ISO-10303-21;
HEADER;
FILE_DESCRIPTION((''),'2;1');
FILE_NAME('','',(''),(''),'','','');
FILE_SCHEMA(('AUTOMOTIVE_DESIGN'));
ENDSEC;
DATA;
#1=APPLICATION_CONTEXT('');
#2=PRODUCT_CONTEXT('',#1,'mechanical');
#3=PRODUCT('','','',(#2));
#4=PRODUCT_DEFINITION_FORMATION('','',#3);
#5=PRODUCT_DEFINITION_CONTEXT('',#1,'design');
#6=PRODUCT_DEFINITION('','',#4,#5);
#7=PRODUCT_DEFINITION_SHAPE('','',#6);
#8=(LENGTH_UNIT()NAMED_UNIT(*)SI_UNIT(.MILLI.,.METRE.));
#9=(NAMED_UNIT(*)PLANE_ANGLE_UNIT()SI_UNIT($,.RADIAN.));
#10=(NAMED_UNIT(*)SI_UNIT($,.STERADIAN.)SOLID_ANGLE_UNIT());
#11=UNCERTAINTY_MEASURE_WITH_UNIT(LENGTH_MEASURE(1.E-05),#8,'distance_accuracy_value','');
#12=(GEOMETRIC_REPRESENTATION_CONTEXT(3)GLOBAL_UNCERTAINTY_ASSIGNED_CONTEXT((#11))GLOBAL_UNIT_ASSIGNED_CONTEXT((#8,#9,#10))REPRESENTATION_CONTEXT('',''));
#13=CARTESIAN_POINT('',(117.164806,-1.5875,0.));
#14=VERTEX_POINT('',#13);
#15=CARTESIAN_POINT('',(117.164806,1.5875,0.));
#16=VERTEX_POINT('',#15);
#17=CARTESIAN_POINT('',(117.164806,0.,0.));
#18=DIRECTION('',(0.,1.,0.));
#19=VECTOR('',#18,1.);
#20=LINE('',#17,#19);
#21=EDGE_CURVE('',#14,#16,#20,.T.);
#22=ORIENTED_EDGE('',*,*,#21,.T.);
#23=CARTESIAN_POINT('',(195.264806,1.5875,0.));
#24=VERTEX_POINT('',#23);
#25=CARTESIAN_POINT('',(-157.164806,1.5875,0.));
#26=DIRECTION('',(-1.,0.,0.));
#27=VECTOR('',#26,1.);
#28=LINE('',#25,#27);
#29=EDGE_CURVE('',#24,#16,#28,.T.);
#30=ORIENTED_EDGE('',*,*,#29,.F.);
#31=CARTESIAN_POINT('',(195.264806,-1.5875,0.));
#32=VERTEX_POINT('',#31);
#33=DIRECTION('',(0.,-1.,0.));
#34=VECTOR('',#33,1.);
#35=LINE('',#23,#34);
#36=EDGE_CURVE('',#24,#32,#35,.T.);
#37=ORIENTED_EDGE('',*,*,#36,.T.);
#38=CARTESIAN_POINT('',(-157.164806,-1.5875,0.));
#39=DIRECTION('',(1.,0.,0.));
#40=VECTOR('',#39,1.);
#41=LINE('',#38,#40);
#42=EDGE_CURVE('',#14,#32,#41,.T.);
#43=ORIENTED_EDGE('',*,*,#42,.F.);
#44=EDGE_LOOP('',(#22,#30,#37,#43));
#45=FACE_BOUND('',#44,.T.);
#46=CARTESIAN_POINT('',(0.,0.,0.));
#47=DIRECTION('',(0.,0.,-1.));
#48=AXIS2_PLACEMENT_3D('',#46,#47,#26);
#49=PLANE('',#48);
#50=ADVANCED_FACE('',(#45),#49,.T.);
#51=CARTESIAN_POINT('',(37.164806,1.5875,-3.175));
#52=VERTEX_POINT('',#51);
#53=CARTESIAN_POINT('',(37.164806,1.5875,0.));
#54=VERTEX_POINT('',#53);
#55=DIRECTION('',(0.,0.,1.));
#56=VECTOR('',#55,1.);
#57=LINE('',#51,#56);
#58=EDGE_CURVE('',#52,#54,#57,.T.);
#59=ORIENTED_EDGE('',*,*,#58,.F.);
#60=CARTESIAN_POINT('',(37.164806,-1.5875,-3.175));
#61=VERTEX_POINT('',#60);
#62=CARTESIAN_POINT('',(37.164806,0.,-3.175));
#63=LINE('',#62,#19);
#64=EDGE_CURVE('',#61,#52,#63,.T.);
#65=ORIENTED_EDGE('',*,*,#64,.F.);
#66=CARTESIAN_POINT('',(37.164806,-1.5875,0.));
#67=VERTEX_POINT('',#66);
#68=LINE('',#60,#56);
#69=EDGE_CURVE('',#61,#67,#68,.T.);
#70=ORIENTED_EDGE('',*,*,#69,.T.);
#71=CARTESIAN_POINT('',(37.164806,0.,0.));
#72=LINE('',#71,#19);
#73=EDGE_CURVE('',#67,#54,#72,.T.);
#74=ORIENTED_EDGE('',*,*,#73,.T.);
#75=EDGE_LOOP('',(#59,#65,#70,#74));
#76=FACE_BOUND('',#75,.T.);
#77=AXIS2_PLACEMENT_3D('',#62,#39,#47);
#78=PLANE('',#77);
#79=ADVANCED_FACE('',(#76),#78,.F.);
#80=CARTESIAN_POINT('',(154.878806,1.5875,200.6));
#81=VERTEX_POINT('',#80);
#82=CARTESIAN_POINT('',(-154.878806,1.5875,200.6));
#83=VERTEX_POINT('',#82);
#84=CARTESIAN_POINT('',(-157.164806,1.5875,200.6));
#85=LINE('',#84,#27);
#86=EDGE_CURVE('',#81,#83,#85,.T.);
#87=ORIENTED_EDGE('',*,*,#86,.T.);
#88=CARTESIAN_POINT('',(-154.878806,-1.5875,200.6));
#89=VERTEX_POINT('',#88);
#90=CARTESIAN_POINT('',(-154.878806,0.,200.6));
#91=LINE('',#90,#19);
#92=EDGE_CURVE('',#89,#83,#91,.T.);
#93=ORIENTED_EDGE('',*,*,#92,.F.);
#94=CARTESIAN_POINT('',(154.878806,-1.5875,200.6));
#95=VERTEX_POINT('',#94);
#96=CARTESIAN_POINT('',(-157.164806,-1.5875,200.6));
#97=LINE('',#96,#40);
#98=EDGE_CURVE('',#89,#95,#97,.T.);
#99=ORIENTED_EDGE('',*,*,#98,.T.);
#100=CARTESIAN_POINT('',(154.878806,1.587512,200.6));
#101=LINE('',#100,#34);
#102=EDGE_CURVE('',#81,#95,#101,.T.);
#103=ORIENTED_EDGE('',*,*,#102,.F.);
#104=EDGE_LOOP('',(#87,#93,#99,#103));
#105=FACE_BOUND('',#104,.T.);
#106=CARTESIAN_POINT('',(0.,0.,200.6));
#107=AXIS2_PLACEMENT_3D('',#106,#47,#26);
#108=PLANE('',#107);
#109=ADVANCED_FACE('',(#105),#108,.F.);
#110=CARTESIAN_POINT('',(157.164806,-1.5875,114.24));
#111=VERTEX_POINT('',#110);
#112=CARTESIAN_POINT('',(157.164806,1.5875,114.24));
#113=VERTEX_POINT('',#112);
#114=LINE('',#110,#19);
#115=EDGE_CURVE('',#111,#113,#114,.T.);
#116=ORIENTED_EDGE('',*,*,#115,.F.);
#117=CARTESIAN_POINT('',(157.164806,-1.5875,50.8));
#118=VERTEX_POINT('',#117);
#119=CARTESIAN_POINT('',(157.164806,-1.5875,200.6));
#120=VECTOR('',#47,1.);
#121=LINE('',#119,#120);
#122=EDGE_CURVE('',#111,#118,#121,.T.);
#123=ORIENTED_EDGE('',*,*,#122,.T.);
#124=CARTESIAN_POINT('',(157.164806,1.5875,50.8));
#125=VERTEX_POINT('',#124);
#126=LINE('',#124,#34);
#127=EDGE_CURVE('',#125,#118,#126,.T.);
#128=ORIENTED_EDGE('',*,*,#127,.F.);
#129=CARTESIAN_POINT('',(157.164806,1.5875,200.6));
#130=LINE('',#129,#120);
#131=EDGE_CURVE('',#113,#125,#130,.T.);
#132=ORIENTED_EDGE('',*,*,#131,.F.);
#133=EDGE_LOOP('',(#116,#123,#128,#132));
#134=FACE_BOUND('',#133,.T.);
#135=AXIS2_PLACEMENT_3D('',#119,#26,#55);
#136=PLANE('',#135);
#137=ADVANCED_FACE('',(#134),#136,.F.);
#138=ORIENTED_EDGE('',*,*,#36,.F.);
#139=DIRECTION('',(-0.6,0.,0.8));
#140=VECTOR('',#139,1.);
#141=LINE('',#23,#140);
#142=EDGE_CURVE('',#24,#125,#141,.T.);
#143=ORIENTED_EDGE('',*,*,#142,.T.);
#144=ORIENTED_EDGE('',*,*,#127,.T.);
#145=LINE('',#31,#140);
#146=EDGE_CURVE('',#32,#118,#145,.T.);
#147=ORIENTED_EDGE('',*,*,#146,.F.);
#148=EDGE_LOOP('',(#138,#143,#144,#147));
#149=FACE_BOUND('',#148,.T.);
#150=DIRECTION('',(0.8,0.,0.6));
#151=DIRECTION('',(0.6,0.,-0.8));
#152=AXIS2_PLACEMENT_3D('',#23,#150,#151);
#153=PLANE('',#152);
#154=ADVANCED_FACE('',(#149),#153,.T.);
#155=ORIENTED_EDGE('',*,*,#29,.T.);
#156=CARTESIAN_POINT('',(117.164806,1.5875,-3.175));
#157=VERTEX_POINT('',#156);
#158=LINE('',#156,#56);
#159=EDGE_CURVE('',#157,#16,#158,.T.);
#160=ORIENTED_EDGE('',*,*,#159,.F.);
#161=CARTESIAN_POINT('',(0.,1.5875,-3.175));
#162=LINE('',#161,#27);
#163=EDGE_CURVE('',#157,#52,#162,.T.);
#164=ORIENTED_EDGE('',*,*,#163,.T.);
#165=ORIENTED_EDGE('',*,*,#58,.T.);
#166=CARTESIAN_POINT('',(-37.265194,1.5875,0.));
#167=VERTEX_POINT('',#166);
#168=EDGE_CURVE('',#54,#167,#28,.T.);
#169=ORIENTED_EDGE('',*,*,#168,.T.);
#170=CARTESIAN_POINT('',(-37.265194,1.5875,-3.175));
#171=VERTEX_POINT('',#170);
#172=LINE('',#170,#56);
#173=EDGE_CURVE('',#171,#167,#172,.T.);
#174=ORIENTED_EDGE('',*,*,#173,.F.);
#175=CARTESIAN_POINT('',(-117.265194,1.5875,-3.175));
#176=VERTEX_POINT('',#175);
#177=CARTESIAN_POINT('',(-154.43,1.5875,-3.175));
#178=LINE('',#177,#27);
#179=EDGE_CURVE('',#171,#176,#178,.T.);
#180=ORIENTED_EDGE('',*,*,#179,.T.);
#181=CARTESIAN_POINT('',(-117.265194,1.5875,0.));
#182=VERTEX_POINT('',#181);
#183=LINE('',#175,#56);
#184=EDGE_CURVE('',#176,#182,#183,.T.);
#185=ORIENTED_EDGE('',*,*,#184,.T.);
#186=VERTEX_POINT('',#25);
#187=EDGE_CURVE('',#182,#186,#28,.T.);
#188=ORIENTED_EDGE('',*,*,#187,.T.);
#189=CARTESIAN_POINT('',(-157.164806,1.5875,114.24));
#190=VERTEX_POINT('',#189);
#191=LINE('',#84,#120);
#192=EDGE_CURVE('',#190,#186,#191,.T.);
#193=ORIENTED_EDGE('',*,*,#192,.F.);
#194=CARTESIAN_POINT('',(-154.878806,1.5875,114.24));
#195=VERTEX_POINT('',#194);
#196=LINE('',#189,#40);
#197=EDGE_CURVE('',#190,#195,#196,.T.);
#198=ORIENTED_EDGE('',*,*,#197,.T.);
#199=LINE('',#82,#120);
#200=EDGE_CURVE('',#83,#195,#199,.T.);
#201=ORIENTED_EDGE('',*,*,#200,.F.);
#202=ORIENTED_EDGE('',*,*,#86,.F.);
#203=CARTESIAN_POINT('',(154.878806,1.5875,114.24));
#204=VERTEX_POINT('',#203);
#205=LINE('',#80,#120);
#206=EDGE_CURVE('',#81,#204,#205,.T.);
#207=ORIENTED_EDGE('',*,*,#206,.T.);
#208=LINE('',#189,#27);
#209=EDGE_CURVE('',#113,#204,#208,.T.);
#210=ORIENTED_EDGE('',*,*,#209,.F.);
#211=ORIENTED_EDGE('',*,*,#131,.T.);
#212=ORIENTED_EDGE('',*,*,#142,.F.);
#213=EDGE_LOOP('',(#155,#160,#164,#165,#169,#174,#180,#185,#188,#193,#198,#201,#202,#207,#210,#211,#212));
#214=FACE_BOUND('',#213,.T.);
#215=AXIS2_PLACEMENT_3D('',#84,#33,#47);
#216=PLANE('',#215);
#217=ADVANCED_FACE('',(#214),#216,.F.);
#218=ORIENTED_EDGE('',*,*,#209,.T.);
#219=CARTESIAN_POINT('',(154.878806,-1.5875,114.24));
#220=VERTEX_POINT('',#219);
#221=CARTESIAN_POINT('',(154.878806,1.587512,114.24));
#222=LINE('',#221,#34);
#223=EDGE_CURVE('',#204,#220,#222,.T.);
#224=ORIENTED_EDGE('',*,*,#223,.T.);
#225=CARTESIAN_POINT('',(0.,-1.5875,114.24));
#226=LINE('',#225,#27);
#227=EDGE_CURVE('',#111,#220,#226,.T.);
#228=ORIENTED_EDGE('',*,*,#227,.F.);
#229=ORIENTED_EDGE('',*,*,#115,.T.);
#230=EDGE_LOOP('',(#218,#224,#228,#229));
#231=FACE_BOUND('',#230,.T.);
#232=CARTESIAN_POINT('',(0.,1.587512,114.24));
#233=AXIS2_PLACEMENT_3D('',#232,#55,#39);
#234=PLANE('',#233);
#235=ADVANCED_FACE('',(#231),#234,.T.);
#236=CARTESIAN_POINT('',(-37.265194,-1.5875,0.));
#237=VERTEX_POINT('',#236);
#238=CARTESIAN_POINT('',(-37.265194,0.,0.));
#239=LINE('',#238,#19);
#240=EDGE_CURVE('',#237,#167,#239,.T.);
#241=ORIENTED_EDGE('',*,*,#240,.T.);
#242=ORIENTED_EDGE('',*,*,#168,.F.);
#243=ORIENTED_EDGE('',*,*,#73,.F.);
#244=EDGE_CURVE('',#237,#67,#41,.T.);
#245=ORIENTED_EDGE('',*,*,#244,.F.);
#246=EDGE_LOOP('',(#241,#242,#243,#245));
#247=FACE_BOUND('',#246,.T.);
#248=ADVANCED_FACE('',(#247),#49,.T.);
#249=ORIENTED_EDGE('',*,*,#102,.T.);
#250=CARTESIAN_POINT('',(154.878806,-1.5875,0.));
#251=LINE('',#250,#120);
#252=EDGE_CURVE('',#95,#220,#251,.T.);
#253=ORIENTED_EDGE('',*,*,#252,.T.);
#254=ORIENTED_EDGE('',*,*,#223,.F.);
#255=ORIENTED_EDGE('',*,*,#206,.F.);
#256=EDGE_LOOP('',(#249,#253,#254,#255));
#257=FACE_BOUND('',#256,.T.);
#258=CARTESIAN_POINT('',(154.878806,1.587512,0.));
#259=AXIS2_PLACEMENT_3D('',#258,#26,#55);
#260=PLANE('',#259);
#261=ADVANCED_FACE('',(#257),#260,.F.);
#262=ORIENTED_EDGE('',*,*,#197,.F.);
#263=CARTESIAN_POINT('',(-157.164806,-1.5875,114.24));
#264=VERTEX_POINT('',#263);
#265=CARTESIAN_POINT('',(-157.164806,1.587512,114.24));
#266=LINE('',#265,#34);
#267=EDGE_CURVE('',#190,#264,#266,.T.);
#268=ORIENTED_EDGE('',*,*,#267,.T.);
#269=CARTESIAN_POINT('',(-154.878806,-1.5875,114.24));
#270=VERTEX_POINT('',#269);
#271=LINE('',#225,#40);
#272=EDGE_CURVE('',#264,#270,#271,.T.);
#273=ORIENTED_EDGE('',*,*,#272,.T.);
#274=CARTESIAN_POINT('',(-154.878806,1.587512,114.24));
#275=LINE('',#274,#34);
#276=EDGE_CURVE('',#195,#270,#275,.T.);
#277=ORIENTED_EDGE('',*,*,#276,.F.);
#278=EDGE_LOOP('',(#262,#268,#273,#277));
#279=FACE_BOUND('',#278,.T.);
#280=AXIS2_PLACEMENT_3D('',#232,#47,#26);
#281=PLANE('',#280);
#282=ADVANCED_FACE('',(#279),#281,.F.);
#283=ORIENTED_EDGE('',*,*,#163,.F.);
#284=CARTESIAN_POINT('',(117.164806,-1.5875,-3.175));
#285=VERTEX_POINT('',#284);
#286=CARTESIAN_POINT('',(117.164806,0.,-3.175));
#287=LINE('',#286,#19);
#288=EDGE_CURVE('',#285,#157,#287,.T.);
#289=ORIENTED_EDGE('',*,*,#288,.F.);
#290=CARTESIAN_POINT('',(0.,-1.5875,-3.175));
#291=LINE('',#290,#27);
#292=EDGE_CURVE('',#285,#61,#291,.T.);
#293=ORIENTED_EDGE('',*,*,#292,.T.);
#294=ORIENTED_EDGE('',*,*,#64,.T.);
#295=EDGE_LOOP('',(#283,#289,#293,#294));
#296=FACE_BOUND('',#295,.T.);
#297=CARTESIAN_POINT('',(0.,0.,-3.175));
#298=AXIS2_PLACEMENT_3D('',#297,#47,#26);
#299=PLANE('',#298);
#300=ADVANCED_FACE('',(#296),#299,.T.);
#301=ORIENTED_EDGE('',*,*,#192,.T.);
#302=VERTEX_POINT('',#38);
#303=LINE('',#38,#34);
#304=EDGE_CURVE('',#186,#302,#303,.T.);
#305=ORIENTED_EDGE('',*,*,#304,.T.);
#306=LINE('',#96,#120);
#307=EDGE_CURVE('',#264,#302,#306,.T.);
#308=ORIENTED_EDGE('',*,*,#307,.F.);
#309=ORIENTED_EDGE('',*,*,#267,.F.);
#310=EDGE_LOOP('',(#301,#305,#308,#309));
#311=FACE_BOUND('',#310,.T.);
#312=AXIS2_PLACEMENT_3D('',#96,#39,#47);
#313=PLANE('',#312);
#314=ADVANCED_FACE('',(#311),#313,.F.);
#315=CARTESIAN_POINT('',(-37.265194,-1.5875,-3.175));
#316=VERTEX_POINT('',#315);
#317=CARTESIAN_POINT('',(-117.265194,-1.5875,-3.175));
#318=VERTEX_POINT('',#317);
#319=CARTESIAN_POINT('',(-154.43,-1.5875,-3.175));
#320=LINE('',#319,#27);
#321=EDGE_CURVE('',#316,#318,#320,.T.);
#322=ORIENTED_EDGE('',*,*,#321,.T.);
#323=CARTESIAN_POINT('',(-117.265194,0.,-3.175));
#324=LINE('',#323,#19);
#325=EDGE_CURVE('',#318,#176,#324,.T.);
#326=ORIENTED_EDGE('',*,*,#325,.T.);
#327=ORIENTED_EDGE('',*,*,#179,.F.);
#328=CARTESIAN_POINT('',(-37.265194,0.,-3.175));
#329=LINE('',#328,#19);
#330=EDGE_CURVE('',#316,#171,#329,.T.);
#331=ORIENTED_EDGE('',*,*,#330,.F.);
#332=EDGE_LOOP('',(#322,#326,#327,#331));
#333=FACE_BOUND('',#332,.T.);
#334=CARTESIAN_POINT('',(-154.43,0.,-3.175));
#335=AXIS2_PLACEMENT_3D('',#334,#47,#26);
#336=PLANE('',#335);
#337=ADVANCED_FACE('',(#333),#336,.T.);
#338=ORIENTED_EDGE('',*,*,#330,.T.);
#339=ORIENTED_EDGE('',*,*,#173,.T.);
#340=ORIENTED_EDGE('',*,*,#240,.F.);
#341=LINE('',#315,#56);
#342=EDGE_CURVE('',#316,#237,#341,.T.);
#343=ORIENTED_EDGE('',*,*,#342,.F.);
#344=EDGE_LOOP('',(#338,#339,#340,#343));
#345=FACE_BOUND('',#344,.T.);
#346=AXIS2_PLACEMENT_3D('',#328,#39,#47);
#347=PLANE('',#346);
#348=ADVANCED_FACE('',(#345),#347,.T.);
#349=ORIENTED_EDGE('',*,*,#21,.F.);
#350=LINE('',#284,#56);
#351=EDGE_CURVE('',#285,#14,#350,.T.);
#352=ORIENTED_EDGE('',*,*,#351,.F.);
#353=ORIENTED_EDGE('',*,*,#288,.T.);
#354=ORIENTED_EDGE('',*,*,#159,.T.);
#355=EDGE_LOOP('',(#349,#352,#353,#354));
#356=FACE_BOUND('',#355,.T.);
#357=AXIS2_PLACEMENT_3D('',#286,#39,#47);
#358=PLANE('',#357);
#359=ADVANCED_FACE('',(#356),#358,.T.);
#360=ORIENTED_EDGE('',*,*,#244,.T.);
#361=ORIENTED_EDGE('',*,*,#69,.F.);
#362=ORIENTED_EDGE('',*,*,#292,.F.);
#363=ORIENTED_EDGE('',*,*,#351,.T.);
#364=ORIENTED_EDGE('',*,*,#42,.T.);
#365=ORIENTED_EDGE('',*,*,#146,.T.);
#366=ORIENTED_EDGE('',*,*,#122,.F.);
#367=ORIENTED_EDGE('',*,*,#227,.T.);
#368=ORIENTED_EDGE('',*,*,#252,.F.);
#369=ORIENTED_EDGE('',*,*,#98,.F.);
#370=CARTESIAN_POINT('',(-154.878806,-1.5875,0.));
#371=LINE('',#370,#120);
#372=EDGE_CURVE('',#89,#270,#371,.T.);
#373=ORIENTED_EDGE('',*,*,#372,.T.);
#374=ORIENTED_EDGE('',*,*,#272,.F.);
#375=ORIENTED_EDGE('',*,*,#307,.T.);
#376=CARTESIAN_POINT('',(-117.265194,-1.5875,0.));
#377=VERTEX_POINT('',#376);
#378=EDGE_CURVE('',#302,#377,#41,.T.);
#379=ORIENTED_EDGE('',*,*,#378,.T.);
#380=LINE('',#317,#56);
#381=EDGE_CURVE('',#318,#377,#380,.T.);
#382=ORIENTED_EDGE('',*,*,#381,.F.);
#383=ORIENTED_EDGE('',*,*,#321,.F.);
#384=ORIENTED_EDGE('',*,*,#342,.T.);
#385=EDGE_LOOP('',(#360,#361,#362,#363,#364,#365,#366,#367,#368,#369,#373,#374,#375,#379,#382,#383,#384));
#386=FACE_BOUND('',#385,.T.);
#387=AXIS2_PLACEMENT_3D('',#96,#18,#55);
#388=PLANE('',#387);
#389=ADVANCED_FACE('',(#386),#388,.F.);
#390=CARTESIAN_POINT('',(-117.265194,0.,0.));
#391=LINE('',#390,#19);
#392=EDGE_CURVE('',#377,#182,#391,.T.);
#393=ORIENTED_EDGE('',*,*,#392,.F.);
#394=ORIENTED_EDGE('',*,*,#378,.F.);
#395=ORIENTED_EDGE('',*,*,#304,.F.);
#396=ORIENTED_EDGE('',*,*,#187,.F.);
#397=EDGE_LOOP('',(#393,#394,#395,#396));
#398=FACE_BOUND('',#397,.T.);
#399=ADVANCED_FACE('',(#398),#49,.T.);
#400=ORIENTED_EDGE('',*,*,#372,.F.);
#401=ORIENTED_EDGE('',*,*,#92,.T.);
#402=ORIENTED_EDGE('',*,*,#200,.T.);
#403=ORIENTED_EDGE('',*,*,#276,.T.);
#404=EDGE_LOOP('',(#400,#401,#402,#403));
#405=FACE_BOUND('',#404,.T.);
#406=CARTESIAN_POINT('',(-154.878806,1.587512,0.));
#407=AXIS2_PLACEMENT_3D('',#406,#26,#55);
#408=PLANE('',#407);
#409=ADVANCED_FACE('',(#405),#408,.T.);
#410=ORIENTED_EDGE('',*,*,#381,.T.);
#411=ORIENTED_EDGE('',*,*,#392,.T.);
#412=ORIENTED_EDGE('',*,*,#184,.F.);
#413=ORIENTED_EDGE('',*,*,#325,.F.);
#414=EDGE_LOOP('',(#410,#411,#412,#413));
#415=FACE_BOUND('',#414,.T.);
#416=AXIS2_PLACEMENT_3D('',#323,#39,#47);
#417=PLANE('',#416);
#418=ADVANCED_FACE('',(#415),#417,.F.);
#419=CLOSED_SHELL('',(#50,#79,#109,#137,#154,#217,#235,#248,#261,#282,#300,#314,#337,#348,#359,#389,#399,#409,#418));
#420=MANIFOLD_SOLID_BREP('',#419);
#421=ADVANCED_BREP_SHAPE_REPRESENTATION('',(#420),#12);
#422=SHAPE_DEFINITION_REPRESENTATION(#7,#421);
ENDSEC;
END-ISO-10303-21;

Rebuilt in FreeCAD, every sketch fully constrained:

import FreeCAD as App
import Part
import Sketcher
Q = App.Units.Quantity

doc = App.newDocument("Part")
body = doc.addObject("PartDesign::Body", "Body")

sketch1 = body.newObject("Sketcher::SketchObject", "Sketch")
sketch1.AttachmentSupport = (doc.getObject("XY_Plane"), [""])
sketch1.MapMode = "FlatFace"
sketch1.addGeometry([
    Part.LineSegment(App.Vector(-157.2, 1.6, 0), App.Vector(-157.2, -1.6, 0)),
    Part.LineSegment(App.Vector(-157.2, -1.6, 0), App.Vector(157.2, -1.6, 0)),
    Part.LineSegment(App.Vector(157.2, -1.6, 0), App.Vector(157.2, 1.6, 0)),
    Part.LineSegment(App.Vector(157.2, 1.6, 0), App.Vector(-157.2, 1.6, 0)),
], False)
sketch1.addConstraint([
    Sketcher.Constraint("Coincident", 0, 2, 1, 1),
    Sketcher.Constraint("Coincident", 1, 2, 2, 1),
    Sketcher.Constraint("Coincident", 2, 2, 3, 1),
    Sketcher.Constraint("Coincident", 3, 2, 0, 1),
    Sketcher.Constraint("Vertical", 0),
    Sketcher.Constraint("Horizontal", 1),
    Sketcher.Constraint("Vertical", 2),
    Sketcher.Constraint("Horizontal", 3),
    Sketcher.Constraint("Symmetric", 0, 2, 2, 2, -1, 1),
    Sketcher.Constraint("DistanceY", 0, 2, 0, 1, Q("0.125 in")),
    Sketcher.Constraint("DistanceX", 1, 1, 1, 2, 314.329613),
])
pad1 = body.newObject("PartDesign::Pad", "Pad")
pad1.Profile = sketch1
pad1.Length = 200.6

sketch2 = body.newObject("Sketcher::SketchObject", "Sketch001")
sketch2.AttachmentSupport = (doc.getObject("XZ_Plane"), [""])
sketch2.MapMode = "FlatFace"
sketch2.AttachmentOffset = App.Placement(App.Vector(0, 0, 0.0625 * 25.4), App.Rotation())
sketch2.addGeometry([
    Part.LineSegment(App.Vector(-157.2, 114.2, 0), App.Vector(-157.2, 200.6, 0)),
    Part.LineSegment(App.Vector(-157.2, 200.6, 0), App.Vector(-154.9, 200.6, 0)),
    Part.LineSegment(App.Vector(-154.9, 200.6, 0), App.Vector(-154.9, 114.2, 0)),
    Part.LineSegment(App.Vector(-154.9, 114.2, 0), App.Vector(-157.2, 114.2, 0)),
], False)
sketch2.addConstraint([
    Sketcher.Constraint("Coincident", 0, 2, 1, 1),
    Sketcher.Constraint("Coincident", 1, 2, 2, 1),
    Sketcher.Constraint("Coincident", 2, 2, 3, 1),
    Sketcher.Constraint("Coincident", 3, 2, 0, 1),
    Sketcher.Constraint("Vertical", 0),
    Sketcher.Constraint("Horizontal", 1),
    Sketcher.Constraint("Vertical", 2),
    Sketcher.Constraint("Horizontal", 3),
    Sketcher.Constraint("DistanceY", 0, 1, 0, 2, Q("3.4 in")),
    Sketcher.Constraint("DistanceX", 1, 1, 1, 2, Q("0.09 in")),
    Sketcher.Constraint("DistanceY", -1, 1, 0, 2, 200.6),
    Sketcher.Constraint("DistanceX", 0, 2, -1, 1, 157.164806),
])
pocket1 = body.newObject("PartDesign::Pocket", "Pocket")
pocket1.Profile = sketch2
pocket1.Length = 259.030286
doc.recompute()

mirrored = body.newObject("PartDesign::Mirrored", "Mirrored")
mirrored.Originals = [pocket1]
mirrored.MirrorPlane = (doc.getObject("YZ_Plane"), [""])
body.Tip = mirrored

sketch3 = body.newObject("Sketcher::SketchObject", "Sketch002")
sketch3.AttachmentSupport = (doc.getObject("XY_Plane"), [""])
sketch3.MapMode = "FlatFace"
sketch3.addGeometry([
    Part.LineSegment(App.Vector(117.2, 1.6, 0), App.Vector(117.2, -1.6, 0)),
    Part.LineSegment(App.Vector(117.2, -1.6, 0), App.Vector(37.2, -1.6, 0)),
    Part.LineSegment(App.Vector(37.2, -1.6, 0), App.Vector(37.2, 1.6, 0)),
    Part.LineSegment(App.Vector(37.2, 1.6, 0), App.Vector(117.2, 1.6, 0)),
], False)
sketch3.addConstraint([
    Sketcher.Constraint("Coincident", 0, 2, 1, 1),
    Sketcher.Constraint("Coincident", 1, 2, 2, 1),
    Sketcher.Constraint("Coincident", 2, 2, 3, 1),
    Sketcher.Constraint("Coincident", 3, 2, 0, 1),
    Sketcher.Constraint("Vertical", 0),
    Sketcher.Constraint("Horizontal", 1),
    Sketcher.Constraint("Vertical", 2),
    Sketcher.Constraint("Horizontal", 3),
    Sketcher.Constraint("DistanceY", 0, 2, 0, 1, Q("0.125 in")),
    Sketcher.Constraint("DistanceY", 0, 2, -1, 1, Q("0.0625 in")),
    Sketcher.Constraint("DistanceX", 1, 2, 1, 1, 80.0),
    Sketcher.Constraint("DistanceX", -1, 1, 0, 2, 117.164806),
])
pad2 = body.newObject("PartDesign::Pad", "Pad001")
pad2.Profile = sketch3
pad2.Length = Q("0.125 in")
pad2.Reversed = True
doc.recompute()

linearpattern = body.newObject("PartDesign::LinearPattern", "LinearPattern")
linearpattern.Originals = [pad2]
linearpattern.Direction = (doc.getObject("X_Axis"), [""])
linearpattern.Mode = "offset"
linearpattern.Offset = 154.43
linearpattern.Occurrences = 2
linearpattern.Reversed = True
body.Tip = linearpattern

sketch4 = body.newObject("Sketcher::SketchObject", "Sketch003")
sketch4.AttachmentSupport = (doc.getObject("XZ_Plane"), [""])
sketch4.MapMode = "FlatFace"
sketch4.AttachmentOffset = App.Placement(App.Vector(0, 0, 0.0625 * 25.4), App.Rotation())
sketch4.addGeometry([
    Part.LineSegment(App.Vector(157, 0, 0), App.Vector(195, 0, 0)),
    Part.LineSegment(App.Vector(195, 0, 0), App.Vector(157, 51, 0)),
    Part.LineSegment(App.Vector(157, 51, 0), App.Vector(157, 0, 0)),
], False)
sketch4.addConstraint([
    Sketcher.Constraint("Coincident", 0, 2, 1, 1),
    Sketcher.Constraint("Coincident", 1, 2, 2, 1),
    Sketcher.Constraint("Coincident", 2, 2, 0, 1),
    Sketcher.Constraint("Horizontal", 0),
    Sketcher.Constraint("Vertical", 2),
    Sketcher.Constraint("PointOnObject", 0, 2, -1),
    Sketcher.Constraint("DistanceY", 2, 2, 2, 1, Q("2 in")),
    Sketcher.Constraint("DistanceX", 0, 1, 0, 2, Q("1.5 in")),
    Sketcher.Constraint("DistanceX", -1, 1, 0, 2, 195.264806),
])
pad3 = body.newObject("PartDesign::Pad", "Pad002")
pad3.Profile = sketch4
pad3.Length = Q("0.125 in")
pad3.Reversed = True

doc.recompute()
